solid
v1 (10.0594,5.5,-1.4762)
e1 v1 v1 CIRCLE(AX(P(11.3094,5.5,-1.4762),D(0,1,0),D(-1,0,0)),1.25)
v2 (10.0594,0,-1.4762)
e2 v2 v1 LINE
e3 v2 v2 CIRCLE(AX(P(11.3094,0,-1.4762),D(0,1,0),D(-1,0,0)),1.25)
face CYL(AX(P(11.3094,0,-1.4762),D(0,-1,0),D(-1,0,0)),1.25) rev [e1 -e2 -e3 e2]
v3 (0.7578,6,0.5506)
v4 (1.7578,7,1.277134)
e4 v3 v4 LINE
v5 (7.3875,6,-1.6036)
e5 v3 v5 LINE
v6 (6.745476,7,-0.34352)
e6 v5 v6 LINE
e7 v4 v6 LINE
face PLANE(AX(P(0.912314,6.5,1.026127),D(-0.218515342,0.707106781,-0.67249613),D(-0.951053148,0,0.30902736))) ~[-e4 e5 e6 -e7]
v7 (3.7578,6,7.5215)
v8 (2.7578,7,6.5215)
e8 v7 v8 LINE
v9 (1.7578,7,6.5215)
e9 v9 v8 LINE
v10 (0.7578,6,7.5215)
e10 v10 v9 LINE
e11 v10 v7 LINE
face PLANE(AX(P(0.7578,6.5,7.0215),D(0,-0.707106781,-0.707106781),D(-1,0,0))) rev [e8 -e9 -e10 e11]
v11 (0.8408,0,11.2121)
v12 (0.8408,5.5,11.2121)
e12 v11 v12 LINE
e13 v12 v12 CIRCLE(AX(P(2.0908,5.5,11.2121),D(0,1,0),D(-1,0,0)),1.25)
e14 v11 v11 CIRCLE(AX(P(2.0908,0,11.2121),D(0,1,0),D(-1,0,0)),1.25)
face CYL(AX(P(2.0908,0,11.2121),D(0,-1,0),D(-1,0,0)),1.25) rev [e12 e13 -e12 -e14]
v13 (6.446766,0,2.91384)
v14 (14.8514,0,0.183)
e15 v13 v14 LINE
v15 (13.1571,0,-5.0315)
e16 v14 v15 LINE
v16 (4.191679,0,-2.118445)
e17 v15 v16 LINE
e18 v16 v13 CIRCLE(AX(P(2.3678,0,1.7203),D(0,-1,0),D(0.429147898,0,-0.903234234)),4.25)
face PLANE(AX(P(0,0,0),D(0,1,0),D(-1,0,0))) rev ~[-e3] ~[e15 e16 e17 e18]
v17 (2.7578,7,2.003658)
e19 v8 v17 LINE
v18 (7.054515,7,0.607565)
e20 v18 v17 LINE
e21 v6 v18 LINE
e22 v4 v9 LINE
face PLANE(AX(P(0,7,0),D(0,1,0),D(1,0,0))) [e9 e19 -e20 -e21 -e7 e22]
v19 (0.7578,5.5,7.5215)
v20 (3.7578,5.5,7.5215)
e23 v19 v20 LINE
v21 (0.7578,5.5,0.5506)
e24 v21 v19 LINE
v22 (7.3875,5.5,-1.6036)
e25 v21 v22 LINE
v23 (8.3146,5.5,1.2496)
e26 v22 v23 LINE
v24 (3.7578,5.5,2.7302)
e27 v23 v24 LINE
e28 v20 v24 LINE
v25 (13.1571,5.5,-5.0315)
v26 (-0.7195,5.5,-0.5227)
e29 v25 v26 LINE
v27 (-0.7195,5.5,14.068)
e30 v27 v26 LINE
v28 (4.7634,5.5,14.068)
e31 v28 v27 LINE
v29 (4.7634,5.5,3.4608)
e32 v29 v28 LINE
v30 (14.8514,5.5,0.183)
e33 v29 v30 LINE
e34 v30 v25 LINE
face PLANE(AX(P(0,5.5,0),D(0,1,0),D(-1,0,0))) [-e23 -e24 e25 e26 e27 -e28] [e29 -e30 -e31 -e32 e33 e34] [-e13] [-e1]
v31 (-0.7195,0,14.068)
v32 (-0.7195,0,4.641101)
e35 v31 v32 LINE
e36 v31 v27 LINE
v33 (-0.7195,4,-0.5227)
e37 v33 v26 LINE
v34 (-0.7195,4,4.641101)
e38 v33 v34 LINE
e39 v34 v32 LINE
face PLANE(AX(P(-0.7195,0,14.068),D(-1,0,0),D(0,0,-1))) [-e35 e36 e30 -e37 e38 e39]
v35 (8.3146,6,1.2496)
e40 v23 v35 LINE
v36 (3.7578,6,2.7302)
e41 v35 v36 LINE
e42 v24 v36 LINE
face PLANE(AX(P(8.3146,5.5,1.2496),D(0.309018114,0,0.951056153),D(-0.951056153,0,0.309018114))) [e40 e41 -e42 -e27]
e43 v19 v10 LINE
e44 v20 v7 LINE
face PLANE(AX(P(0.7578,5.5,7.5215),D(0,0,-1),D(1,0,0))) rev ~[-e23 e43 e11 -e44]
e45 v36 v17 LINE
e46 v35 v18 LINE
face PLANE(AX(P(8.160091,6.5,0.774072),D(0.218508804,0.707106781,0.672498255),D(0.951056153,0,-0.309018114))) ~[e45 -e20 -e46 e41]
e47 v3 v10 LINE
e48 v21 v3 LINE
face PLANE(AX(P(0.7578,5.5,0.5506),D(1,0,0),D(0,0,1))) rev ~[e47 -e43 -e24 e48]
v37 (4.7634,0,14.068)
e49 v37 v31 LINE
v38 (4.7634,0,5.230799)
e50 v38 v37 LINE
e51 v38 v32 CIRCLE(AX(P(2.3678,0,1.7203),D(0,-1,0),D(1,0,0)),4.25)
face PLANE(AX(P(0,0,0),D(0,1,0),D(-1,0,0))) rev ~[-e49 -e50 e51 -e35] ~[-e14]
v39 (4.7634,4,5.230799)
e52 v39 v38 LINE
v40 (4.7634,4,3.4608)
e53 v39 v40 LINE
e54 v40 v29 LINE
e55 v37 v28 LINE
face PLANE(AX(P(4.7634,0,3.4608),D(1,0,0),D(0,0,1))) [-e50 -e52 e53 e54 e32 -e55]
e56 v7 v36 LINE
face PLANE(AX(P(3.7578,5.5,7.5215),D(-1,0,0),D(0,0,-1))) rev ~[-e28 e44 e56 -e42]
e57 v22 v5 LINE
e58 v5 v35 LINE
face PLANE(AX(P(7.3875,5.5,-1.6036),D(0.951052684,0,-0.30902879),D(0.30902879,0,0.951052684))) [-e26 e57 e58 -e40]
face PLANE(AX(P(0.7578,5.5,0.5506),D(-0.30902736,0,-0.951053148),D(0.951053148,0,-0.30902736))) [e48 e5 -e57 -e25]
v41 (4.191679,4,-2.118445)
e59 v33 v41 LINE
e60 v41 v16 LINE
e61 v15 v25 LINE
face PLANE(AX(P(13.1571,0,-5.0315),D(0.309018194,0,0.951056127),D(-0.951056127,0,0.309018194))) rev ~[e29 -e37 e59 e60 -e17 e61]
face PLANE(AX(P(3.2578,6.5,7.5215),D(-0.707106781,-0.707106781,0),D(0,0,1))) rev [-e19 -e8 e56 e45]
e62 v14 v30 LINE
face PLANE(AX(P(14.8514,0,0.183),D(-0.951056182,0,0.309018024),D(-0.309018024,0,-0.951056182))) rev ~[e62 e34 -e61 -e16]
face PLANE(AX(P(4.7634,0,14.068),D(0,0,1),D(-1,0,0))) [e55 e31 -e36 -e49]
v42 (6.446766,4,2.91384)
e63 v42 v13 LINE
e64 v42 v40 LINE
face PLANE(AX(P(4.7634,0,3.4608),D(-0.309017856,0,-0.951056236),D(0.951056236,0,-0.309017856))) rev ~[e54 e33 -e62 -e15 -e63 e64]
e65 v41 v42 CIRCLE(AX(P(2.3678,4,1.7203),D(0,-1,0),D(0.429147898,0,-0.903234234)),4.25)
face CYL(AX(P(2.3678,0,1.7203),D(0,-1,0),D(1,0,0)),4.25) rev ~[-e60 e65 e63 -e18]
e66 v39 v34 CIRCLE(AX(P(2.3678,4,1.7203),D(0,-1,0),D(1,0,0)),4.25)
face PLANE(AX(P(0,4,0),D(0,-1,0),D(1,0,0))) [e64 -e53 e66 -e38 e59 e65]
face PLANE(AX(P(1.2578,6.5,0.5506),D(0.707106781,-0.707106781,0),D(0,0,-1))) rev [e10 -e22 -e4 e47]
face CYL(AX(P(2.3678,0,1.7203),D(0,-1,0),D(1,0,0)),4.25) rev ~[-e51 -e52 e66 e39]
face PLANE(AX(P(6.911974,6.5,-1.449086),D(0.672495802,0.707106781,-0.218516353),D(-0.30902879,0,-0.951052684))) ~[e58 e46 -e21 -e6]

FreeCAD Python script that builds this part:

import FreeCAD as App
import Part
import Sketcher
from FreeCAD import Vector
Q = App.Units.Quantity


def edges_at(feature, points):
    """Names of the edges that pass closest to the given points."""
    edges = feature.Shape.Edges
    near = lambda p: min(range(len(edges)), key=lambda i: edges[i].distToShape(Part.Vertex(*p))[0])
    return sorted({f"Edge{near(p) + 1}" for p in points})


def add_polygon(sketch, points):
    """Adds a closed chain of lines whose ends are joined by coincident constraints."""
    first, n = sketch.GeometryCount, len(points)
    for a, b in zip(points, points[1:] + points[:1]):
        sketch.addGeometry(Part.LineSegment(App.Vector(*a, 0), App.Vector(*b, 0)), False)
    for i in range(n):
        sketch.addConstraint(Sketcher.Constraint("Coincident", first + i, 2, first + (i + 1) % n, 1))

doc = App.newDocument("Part")
body = doc.addObject("PartDesign::Body", "Body")

# Sketch on XZ plane
sketch1 = body.newObject("Sketcher::SketchObject", "Sketch")
sketch1.AttachmentSupport = (doc.getObject("XZ_Plane"), [""])
sketch1.MapMode = "FlatFace"
add_polygon(sketch1, [(-0.7, -0.5), (-0.7, 14.1), (4.8, 14.1), (4.8, 3.5), (14.9, 0.2), (13.2, -5)])  # lines 0-5
sketch1.addGeometry(Part.Circle(Vector(11.3, -1.5, 0), Vector(0, 0, 1), 1.2), False)  # 6
sketch1.addGeometry(Part.Circle(Vector(2.1, 11.2, 0), Vector(0, 0, 1), 1.2), False)  # 7
sketch1.addConstraint(Sketcher.Constraint("Vertical", 0))
sketch1.addConstraint(Sketcher.Constraint("Horizontal", 1))
sketch1.addConstraint(Sketcher.Constraint("Vertical", 2))
sketch1.addConstraint(Sketcher.Constraint("Equal", 6, 7))
sketch1.addConstraint(Sketcher.Constraint("Perpendicular", 3, 4))
sketch1.addConstraint(Sketcher.Constraint("Perpendicular", 4, 5))
sketch1.addConstraint(Sketcher.Constraint("Diameter", 6, Q("2.5 mm")))
sketch1.addConstraint(Sketcher.Constraint("Angle", 3, Q("-18 deg")))
sketch1.addConstraint(Sketcher.Constraint("DistanceX", 1, 1, 1, 2, Q("5.483 mm")))
sketch1.addConstraint(Sketcher.Constraint("DistanceY", 0, 1, 0, 2, Q("14.5907 mm")))
sketch1.addConstraint(Sketcher.Constraint("DistanceY", 2, 2, 2, 1, Q("10.6072 mm")))
sketch1.addConstraint(Sketcher.Constraint("DistanceY", -1, 1, 7, 3, Q("11.212 mm")))
sketch1.addConstraint(Sketcher.Constraint("DistanceY", -1, 1, 0, 2, Q("14.068 mm")))
sketch1.addConstraint(Sketcher.Constraint("DistanceY", -1, 1, 3, 2, Q("0.183 mm")))
sketch1.addConstraint(Sketcher.Constraint("DistanceX", -1, 1, 4, 2, Q("13.157 mm")))
sketch1.addConstraint(Sketcher.Constraint("DistanceX", 0, 2, 6, 3, Q("12.029 mm")))
sketch1.addConstraint(Sketcher.Constraint("DistanceY", 6, 3, 2, 2, Q("4.937 mm")))
sketch1.addConstraint(Sketcher.Constraint("DistanceX", -1, 1, 7, 3, Q("2.0908 mm")))
pad1 = body.newObject("PartDesign::Pad", "Pad")
pad1.Profile = sketch1
pad1.Length = 5.5
pad1.Reversed = True

# Sketch on XZ plane
sketch2 = body.newObject("Sketcher::SketchObject", "Sketch001")
sketch2.AttachmentSupport = (doc.getObject("XZ_Plane"), [""])
sketch2.MapMode = "FlatFace"
sketch2.addGeometry(Part.Circle(Vector(2.4, 1.7, 0), Vector(0, 0, 1), 4.2), False)
sketch2.addConstraint(Sketcher.Constraint("Diameter", 0, Q("8.5 mm")))
sketch2.addConstraint(Sketcher.Constraint("DistanceX", -1, 1, 0, 3, Q("2.3678 mm")))
sketch2.addConstraint(Sketcher.Constraint("DistanceY", -1, 1, 0, 3, Q("1.7203 mm")))
pocket1 = body.newObject("PartDesign::Pocket", "Pocket")
pocket1.Profile = sketch2
pocket1.Length = 4

# Sketch on XZ plane
sketch3 = body.newObject("Sketcher::SketchObject", "Sketch002")
sketch3.AttachmentSupport = (doc.getObject("XZ_Plane"), [""])
sketch3.MapMode = "FlatFace"
sketch3.AttachmentOffset = App.Placement(Vector(0, 0, -5.5), App.Rotation())
add_polygon(sketch3, [(7.4, -1.6), (0.8, 0.6), (0.8, 7.5), (3.8, 7.5), (3.8, 2.7), (8.3, 1.2)])  # lines 0-5
sketch3.addConstraint(Sketcher.Constraint("Vertical", 1))
sketch3.addConstraint(Sketcher.Constraint("Horizontal", 2))
sketch3.addConstraint(Sketcher.Constraint("Vertical", 3))
sketch3.addConstraint(Sketcher.Constraint("Parallel", 0, 4))
sketch3.addConstraint(Sketcher.Constraint("Perpendicular", 4, 5))
sketch3.addConstraint(Sketcher.Constraint("DistanceX", 2, 1, 2, 2, Q("3 mm")))
sketch3.addConstraint(Sketcher.Constraint("Angle", 0, Q("161.9994 deg")))
sketch3.addConstraint(Sketcher.Constraint("Distance", 5, Q("3 mm")))
sketch3.addConstraint(Sketcher.Constraint("DistanceY", 1, 1, 1, 2, Q("6.971 mm")))
sketch3.addConstraint(Sketcher.Constraint("Distance", 0, Q("6.971 mm")))
sketch3.addConstraint(Sketcher.Constraint("DistanceX", -1, 1, 0, 2, Q("0.7578 mm")))
sketch3.addConstraint(Sketcher.Constraint("DistanceY", -1, 1, 0, 2, Q("0.5506 mm")))
pad2 = body.newObject("PartDesign::Pad", "Pad001")
pad2.Profile = sketch3
pad2.Length = 1.5
pad2.Reversed = True
doc.recompute()

chamfer = body.newObject("PartDesign::Chamfer", "Chamfer")
chamfer.Base = (pad2, edges_at(pad2, [
    (2.258, 7, 7.521),
    (3.758, 7, 5.126),
    (6.036, 7, 1.99),
    (7.851, 7, -0.177),
    (4.073, 7, -0.526),
    (0.758, 7, 4.036),
]))
chamfer.Size = 1

doc.recompute()
